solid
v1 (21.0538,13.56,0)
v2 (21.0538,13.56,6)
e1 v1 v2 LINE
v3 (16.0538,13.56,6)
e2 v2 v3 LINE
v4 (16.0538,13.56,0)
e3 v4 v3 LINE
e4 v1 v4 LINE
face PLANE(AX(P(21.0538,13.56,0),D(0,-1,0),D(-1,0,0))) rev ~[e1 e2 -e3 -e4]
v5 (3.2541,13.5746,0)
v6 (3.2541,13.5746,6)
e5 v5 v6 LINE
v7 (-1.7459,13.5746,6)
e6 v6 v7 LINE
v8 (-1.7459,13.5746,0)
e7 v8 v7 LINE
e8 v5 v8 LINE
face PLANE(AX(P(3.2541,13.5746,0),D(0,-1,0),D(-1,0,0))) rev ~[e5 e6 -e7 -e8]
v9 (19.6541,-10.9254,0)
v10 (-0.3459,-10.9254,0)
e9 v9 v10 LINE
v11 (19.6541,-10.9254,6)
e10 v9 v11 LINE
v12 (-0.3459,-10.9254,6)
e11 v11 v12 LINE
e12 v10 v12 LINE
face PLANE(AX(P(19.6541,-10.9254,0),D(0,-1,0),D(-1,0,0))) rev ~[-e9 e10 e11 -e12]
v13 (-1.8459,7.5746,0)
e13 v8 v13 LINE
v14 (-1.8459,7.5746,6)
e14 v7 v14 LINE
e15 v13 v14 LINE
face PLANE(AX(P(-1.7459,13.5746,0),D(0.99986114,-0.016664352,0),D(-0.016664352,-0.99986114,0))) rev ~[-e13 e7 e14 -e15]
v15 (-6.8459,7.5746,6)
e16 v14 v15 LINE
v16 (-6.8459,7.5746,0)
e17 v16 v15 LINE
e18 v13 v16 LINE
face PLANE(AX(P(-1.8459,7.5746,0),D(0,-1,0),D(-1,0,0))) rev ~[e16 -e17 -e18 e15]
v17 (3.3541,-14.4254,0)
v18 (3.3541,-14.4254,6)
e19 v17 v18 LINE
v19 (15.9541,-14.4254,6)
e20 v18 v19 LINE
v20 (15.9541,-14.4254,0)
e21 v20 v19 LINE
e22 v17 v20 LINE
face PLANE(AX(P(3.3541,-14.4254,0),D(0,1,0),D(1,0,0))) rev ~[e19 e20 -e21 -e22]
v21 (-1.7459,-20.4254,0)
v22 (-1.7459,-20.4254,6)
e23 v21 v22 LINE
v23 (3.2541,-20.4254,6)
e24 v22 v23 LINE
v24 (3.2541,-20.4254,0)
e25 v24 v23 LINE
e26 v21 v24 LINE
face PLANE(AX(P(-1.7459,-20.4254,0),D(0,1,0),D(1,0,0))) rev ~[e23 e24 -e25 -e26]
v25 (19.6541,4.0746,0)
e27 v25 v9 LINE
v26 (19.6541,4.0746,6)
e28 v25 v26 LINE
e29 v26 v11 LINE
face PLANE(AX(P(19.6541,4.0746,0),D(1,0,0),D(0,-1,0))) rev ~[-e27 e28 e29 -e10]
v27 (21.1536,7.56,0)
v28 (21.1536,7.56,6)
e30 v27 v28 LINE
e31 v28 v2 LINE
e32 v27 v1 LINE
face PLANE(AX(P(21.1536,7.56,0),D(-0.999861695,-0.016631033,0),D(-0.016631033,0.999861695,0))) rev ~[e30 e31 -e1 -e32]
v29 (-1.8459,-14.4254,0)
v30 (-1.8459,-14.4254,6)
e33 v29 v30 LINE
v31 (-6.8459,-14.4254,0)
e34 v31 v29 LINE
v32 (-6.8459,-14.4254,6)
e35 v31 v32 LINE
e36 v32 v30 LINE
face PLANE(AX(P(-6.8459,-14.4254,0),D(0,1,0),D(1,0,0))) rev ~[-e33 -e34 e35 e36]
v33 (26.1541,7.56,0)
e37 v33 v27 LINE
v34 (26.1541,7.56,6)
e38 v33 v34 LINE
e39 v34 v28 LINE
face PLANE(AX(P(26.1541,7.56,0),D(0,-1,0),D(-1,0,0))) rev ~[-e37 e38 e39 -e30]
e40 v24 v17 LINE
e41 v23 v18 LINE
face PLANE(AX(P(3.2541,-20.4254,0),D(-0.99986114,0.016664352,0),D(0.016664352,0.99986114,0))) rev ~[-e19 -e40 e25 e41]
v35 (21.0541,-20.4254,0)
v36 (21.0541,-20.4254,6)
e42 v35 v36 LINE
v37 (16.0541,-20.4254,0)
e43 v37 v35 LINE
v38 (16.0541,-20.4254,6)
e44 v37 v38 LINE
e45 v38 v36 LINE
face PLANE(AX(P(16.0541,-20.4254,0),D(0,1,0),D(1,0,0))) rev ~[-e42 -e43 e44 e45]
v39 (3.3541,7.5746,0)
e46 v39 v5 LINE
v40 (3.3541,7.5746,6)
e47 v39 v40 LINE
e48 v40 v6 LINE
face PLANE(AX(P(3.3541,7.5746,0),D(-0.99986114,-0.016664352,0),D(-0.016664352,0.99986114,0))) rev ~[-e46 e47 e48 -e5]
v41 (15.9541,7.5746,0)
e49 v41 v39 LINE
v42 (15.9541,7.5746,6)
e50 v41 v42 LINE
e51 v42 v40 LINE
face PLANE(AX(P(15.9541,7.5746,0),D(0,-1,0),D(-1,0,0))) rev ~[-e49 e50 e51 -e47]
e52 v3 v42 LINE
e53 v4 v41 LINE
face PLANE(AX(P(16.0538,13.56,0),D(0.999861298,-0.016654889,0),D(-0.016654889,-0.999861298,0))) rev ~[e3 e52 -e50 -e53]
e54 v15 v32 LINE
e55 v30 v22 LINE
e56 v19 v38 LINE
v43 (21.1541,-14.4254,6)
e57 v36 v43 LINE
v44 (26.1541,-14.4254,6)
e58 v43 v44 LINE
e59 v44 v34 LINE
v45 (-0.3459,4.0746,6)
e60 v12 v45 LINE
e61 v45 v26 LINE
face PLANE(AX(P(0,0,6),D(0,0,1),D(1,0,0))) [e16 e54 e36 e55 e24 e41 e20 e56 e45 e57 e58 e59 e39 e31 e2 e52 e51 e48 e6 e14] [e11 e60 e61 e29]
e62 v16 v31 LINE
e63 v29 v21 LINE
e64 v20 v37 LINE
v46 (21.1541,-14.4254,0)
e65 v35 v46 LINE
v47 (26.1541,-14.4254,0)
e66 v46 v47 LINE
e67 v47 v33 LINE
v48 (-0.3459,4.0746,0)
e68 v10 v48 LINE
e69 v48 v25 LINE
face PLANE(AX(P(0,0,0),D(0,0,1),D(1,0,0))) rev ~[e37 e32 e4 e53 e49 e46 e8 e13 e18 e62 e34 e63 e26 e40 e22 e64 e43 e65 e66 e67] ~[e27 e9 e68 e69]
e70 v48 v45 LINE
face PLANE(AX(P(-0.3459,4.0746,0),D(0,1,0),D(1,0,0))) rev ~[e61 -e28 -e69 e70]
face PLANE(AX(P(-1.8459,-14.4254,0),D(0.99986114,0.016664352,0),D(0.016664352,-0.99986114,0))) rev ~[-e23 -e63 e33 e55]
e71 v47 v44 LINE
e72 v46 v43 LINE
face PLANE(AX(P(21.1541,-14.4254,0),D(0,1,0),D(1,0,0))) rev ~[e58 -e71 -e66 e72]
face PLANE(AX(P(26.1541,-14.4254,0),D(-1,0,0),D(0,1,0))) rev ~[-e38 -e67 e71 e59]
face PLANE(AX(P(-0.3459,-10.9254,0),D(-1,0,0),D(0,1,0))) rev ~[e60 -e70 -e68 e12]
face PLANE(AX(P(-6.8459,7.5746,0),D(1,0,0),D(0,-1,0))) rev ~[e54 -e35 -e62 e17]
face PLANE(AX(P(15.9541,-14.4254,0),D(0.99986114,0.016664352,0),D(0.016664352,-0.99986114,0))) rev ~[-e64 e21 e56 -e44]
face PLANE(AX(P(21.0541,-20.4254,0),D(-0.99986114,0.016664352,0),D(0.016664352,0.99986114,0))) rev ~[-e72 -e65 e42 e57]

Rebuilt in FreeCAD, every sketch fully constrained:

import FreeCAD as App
import Part
import Sketcher
from FreeCAD import Vector

doc = App.newDocument("Part")
body = doc.addObject("PartDesign::Body", "Body")

# Sketch on XY plane
sketch1 = body.newObject("Sketcher::SketchObject", "Sketch")
sketch1.AttachmentSupport = (doc.getObject("XY_Plane"), [""])
sketch1.MapMode = "FlatFace"
sketch1.addGeometry([
    Part.LineSegment(Vector(-1.8459, 7.5746, 0), Vector(-6.8459, 7.5746, 0)),  # 0
    Part.LineSegment(Vector(-6.8459, 7.5746, 0), Vector(-6.8459, -14.4254, 0)),  # 1
    Part.LineSegment(Vector(-6.8459, -14.4254, 0), Vector(-1.8459, -14.4254, 0)),  # 2
    Part.LineSegment(Vector(-1.8459, -14.4254, 0), Vector(-1.7459, -20.4254, 0)),  # 3
    Part.LineSegment(Vector(-1.7459, -20.4254, 0), Vector(3.2541, -20.4254, 0)),  # 4
    Part.LineSegment(Vector(3.2541, -20.4254, 0), Vector(3.3541, -14.4254, 0)),  # 5
    Part.LineSegment(Vector(3.3541, -14.4254, 0), Vector(15.9541, -14.4254, 0)),  # 6
    Part.LineSegment(Vector(15.9541, -14.4254, 0), Vector(16.0541, -20.4254, 0)),  # 7
    Part.LineSegment(Vector(16.0541, -20.4254, 0), Vector(21.0541, -20.4254, 0)),  # 8
    Part.LineSegment(Vector(21.0541, -20.4254, 0), Vector(21.1541, -14.4254, 0)),  # 9
    Part.LineSegment(Vector(21.1541, -14.4254, 0), Vector(26.1541, -14.4254, 0)),  # 10
    Part.LineSegment(Vector(26.1541, -14.4254, 0), Vector(26.1541, 7.56, 0)),  # 11
    Part.LineSegment(Vector(26.1541, 7.56, 0), Vector(21.1536, 7.56, 0)),  # 12
    Part.LineSegment(Vector(21.1536, 7.56, 0), Vector(21.0538, 13.56, 0)),  # 13
    Part.LineSegment(Vector(21.0538, 13.56, 0), Vector(16.0538, 13.56, 0)),  # 14
    Part.LineSegment(Vector(16.0538, 13.56, 0), Vector(15.9541, 7.5746, 0)),  # 15
    Part.LineSegment(Vector(15.9541, 7.5746, 0), Vector(3.3541, 7.5746, 0)),  # 16
    Part.LineSegment(Vector(3.3541, 7.5746, 0), Vector(3.2541, 13.5746, 0)),  # 17
    Part.LineSegment(Vector(3.2541, 13.5746, 0), Vector(-1.7459, 13.5746, 0)),  # 18
    Part.LineSegment(Vector(-1.7459, 13.5746, 0), Vector(-1.8459, 7.5746, 0)),  # 19
    Part.LineSegment(Vector(-0.3459, 4.0746, 0), Vector(19.6541, 4.0746, 0)),  # 20
    Part.LineSegment(Vector(19.6541, 4.0746, 0), Vector(19.6541, -10.9254, 0)),  # 21
    Part.LineSegment(Vector(19.6541, -10.9254, 0), Vector(-0.3459, -10.9254, 0)),  # 22
    Part.LineSegment(Vector(-0.3459, -10.9254, 0), Vector(-0.3459, 4.0746, 0)),  # 23
], False)
sketch1.addConstraint([
    Sketcher.Constraint("Coincident", 0, 2, 1, 1),
    Sketcher.Constraint("Coincident", 1, 2, 2, 1),
    Sketcher.Constraint("Coincident", 2, 2, 3, 1),
    Sketcher.Constraint("Coincident", 3, 2, 4, 1),
    Sketcher.Constraint("Coincident", 4, 2, 5, 1),
    Sketcher.Constraint("Coincident", 5, 2, 6, 1),
    Sketcher.Constraint("Coincident", 6, 2, 7, 1),
    Sketcher.Constraint("Coincident", 7, 2, 8, 1),
    Sketcher.Constraint("Coincident", 8, 2, 9, 1),
    Sketcher.Constraint("Coincident", 9, 2, 10, 1),
    Sketcher.Constraint("Coincident", 10, 2, 11, 1),
    Sketcher.Constraint("Coincident", 11, 2, 12, 1),
    Sketcher.Constraint("Coincident", 12, 2, 13, 1),
    Sketcher.Constraint("Coincident", 13, 2, 14, 1),
    Sketcher.Constraint("Coincident", 14, 2, 15, 1),
    Sketcher.Constraint("Coincident", 15, 2, 16, 1),
    Sketcher.Constraint("Coincident", 16, 2, 17, 1),
    Sketcher.Constraint("Coincident", 17, 2, 18, 1),
    Sketcher.Constraint("Coincident", 18, 2, 19, 1),
    Sketcher.Constraint("Coincident", 19, 2, 0, 1),
    Sketcher.Constraint("Coincident", 20, 2, 21, 1),
    Sketcher.Constraint("Coincident", 21, 2, 22, 1),
    Sketcher.Constraint("Coincident", 22, 2, 23, 1),
    Sketcher.Constraint("Coincident", 23, 2, 20, 1),
    Sketcher.Constraint("Horizontal", 0),
    Sketcher.Constraint("Vertical", 1),
    Sketcher.Constraint("Horizontal", 2),
    Sketcher.Constraint("Horizontal", 4),
    Sketcher.Constraint("Horizontal", 6),
    Sketcher.Constraint("Horizontal", 8),
    Sketcher.Constraint("Horizontal", 10),
    Sketcher.Constraint("Vertical", 11),
    Sketcher.Constraint("Horizontal", 12),
    Sketcher.Constraint("Horizontal", 14),
    Sketcher.Constraint("Horizontal", 16),
    Sketcher.Constraint("Horizontal", 18),
    Sketcher.Constraint("Horizontal", 20),
    Sketcher.Constraint("Vertical", 21),
    Sketcher.Constraint("Horizontal", 22),
    Sketcher.Constraint("Vertical", 23),
    Sketcher.Constraint("Parallel", 3, 7),
    Sketcher.Constraint("Parallel", 5, 9),
    Sketcher.Constraint("Parallel", 7, 13),
    Sketcher.Constraint("Parallel", 9, 15),
    Sketcher.Constraint("Parallel", 13, 17),
    Sketcher.Constraint("Parallel", 15, 19),
    Sketcher.Constraint("Horizontal", 2, 2, 5, 2),
    Sketcher.Constraint("Horizontal", 4, 2, 7, 2),
    Sketcher.Constraint("Horizontal", 6, 2, 9, 2),
    Sketcher.Constraint("Horizontal", 0, 2, 15, 2),
    Sketcher.Constraint("Vertical", 6, 2, 15, 2),
    Sketcher.Constraint("Vertical", 5, 2, 16, 2),
    Sketcher.Constraint("Vertical", 4, 2, 17, 2),
    Sketcher.Constraint("Vertical", 3, 2, 18, 2),
    Sketcher.Constraint("Vertical", 2, 2, 19, 2),
    Sketcher.Constraint("Equal", 2, 4),
    Sketcher.Constraint("Equal", 4, 8),
    Sketcher.Constraint("Equal", 8, 10),
    Sketcher.Constraint("Equal", 10, 14),
    Sketcher.Constraint("Equal", 9, 13),
    Sketcher.Constraint("DistanceX", 0, 2, 0, 1, 5.0),
    Sketcher.Constraint("DistanceX", 20, 1, 20, 2, 20.0),
    Sketcher.Constraint("DistanceY", 1, 2, 1, 1, 22.0),
    Sketcher.Constraint("DistanceY", 21, 2, 21, 1, 15.0),
    Sketcher.Constraint("DistanceX", 6, 1, 6, 2, 12.6),
    Sketcher.Constraint("DistanceY", 3, 2, 2, 2, 6.0),
    Sketcher.Constraint("DistanceX", 2, 2, 3, 2, 0.1),
    Sketcher.Constraint("DistanceX", 15, 2, 20, 2, 3.7),
    Sketcher.Constraint("DistanceY", 20, 2, 15, 2, 3.5),
    Sketcher.Constraint("DistanceY", -1, 1, 11, 2, 7.56),
    Sketcher.Constraint("DistanceY", 11, 1, 11, 2, 21.9854),
    Sketcher.Constraint("DistanceX", 0, 2, -1, 1, 6.846),
])
pad1 = body.newObject("PartDesign::Pad", "Pad")
pad1.Profile = sketch1
pad1.Length = 6

doc.recompute()
